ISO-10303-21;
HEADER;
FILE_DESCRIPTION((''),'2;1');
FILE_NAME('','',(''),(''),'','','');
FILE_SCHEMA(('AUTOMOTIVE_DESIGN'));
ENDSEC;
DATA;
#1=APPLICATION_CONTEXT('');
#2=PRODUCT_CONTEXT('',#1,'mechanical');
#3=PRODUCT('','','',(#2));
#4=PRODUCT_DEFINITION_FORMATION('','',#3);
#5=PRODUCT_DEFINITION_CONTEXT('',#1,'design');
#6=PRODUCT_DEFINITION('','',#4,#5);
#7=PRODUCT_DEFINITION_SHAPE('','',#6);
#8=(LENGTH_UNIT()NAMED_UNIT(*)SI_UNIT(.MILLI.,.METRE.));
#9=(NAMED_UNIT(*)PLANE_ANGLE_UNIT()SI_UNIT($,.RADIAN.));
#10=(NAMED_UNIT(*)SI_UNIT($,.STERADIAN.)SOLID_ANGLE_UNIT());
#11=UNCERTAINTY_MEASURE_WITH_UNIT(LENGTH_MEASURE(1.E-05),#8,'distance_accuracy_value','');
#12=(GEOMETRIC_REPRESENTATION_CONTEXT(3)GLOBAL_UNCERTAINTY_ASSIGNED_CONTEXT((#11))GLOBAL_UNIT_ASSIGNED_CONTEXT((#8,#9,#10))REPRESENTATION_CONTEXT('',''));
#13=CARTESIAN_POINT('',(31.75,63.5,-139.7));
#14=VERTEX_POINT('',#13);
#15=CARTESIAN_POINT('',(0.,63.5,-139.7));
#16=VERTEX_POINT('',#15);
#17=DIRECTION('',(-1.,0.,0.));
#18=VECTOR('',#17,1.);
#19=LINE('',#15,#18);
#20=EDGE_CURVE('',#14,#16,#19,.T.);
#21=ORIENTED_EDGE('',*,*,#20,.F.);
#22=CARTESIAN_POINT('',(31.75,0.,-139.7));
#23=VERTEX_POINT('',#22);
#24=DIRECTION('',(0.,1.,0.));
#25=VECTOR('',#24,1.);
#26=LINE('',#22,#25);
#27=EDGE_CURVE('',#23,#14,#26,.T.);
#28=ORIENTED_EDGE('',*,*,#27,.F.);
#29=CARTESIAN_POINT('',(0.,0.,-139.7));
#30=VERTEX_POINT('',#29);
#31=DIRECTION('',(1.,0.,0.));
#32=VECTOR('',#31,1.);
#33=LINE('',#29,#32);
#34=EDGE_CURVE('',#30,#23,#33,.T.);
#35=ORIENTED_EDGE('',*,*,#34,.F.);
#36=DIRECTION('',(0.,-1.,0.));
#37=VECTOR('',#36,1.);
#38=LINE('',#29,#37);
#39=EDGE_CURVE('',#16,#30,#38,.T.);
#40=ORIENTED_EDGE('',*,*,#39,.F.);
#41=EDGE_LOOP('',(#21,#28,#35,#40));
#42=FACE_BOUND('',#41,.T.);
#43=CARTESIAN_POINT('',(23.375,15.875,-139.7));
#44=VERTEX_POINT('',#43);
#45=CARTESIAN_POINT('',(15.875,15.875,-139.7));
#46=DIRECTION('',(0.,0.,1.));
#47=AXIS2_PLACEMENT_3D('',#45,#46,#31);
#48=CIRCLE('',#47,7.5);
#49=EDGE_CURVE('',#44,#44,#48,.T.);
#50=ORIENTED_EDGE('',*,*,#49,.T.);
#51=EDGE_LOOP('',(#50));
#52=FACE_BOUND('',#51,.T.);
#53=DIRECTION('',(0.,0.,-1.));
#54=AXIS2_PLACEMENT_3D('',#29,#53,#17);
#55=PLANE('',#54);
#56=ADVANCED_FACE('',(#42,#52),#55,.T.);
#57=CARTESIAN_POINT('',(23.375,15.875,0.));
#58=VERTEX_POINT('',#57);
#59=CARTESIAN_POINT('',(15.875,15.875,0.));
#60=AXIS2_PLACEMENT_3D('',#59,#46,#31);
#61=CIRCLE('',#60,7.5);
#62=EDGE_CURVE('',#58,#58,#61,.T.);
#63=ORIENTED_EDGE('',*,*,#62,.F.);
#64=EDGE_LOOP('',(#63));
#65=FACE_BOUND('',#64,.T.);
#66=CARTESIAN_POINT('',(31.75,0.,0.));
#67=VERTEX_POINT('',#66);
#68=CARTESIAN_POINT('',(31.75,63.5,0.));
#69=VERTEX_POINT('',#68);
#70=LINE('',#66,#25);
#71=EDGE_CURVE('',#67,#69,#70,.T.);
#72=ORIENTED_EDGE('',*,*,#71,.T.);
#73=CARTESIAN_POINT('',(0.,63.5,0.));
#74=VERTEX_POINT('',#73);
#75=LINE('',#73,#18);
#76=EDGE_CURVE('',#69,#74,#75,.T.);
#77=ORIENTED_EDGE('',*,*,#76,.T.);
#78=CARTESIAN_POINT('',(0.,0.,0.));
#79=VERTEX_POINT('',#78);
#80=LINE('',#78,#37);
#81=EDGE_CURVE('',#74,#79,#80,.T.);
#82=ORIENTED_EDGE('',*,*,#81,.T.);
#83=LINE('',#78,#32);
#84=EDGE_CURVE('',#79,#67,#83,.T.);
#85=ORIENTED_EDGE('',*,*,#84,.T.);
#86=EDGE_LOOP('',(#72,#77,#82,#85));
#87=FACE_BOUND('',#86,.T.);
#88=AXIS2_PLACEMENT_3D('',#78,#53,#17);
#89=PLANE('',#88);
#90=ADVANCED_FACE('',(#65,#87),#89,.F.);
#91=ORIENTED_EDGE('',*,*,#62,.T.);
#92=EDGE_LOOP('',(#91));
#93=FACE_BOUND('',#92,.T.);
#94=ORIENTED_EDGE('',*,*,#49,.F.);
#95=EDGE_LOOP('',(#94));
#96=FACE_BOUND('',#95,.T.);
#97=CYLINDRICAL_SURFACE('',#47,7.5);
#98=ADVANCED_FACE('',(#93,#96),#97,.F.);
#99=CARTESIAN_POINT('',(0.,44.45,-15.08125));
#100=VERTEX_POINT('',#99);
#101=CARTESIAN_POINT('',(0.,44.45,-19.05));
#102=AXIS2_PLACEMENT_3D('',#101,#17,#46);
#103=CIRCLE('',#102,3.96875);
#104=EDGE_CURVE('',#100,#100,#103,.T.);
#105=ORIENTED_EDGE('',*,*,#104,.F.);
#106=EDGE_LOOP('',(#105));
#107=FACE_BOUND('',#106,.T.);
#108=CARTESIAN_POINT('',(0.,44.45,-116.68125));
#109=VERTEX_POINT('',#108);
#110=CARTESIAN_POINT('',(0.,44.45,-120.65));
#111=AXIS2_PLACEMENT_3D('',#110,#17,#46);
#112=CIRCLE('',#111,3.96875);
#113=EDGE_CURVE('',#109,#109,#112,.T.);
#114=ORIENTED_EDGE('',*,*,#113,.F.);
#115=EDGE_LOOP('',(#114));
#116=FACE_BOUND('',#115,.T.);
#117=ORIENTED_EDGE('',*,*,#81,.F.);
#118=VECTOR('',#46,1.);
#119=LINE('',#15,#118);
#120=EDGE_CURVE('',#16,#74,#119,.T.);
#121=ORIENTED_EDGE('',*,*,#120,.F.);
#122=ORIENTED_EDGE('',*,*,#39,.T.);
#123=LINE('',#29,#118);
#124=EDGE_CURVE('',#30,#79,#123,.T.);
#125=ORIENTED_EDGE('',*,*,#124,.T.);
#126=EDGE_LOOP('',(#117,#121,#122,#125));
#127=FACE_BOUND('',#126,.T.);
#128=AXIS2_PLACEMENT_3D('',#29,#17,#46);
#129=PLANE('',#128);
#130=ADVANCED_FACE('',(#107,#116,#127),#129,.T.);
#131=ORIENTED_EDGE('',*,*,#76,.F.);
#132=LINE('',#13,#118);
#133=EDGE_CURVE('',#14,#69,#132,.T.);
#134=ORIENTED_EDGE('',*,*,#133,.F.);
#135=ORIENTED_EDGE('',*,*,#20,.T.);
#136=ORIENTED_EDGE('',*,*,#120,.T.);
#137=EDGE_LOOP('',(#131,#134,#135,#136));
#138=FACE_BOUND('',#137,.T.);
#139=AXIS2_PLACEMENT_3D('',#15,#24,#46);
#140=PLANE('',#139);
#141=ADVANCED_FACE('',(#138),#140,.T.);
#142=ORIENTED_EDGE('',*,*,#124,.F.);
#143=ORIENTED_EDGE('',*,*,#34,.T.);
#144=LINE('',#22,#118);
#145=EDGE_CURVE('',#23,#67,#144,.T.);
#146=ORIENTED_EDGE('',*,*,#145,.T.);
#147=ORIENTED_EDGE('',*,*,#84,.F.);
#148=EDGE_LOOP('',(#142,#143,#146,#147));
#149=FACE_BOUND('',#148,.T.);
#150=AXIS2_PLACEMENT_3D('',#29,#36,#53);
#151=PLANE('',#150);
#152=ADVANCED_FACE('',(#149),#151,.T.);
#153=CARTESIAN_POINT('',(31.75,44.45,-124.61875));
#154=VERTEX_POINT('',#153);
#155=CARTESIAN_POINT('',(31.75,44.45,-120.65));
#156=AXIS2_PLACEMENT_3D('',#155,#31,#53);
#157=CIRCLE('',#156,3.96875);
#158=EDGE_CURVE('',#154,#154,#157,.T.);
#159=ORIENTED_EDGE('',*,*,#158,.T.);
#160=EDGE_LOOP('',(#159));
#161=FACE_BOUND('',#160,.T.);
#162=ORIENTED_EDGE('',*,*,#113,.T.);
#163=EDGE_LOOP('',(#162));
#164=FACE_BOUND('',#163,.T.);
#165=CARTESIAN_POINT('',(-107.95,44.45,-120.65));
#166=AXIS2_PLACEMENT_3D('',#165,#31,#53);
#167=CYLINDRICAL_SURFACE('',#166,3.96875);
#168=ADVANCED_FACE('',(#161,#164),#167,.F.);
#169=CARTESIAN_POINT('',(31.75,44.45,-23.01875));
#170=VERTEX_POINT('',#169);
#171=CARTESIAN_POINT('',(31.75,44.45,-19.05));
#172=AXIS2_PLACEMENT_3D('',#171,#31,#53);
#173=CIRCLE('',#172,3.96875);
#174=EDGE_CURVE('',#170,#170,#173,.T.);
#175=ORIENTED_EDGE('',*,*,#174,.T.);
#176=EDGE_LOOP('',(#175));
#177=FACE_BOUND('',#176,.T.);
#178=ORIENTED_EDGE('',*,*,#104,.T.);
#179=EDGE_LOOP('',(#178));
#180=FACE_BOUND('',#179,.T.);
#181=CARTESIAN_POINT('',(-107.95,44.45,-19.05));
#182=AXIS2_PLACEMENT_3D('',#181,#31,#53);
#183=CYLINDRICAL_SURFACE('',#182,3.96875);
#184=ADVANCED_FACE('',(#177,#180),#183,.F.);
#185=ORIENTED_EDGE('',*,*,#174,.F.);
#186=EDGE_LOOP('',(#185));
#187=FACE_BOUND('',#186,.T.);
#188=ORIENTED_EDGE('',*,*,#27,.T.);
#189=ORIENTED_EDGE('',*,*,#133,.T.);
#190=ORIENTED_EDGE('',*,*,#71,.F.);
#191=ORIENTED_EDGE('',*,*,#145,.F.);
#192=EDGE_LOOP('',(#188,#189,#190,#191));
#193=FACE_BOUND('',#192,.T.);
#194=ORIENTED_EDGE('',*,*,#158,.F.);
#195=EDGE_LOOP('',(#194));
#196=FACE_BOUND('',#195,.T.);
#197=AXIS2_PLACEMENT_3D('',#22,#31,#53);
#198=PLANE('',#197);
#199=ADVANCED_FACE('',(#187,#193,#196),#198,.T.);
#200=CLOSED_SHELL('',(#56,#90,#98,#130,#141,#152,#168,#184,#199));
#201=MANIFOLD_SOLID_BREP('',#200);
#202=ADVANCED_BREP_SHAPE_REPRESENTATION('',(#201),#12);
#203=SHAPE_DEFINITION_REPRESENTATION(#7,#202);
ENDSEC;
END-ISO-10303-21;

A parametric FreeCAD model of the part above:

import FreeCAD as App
import Part
import Sketcher

V = App.Vector
Q = App.Units.Quantity


def add_polygon(sketch, points):
    """Adds a closed chain of lines whose ends are joined by coincident constraints."""
    first, n = sketch.GeometryCount, len(points)
    for a, b in zip(points, points[1:] + points[:1]):
        sketch.addGeometry(Part.LineSegment(App.Vector(*a, 0), App.Vector(*b, 0)), False)
    for i in range(n):
        sketch.addConstraint(Sketcher.Constraint("Coincident", first + i, 2, first + (i + 1) % n, 1))

doc = App.newDocument("Part")
body = doc.addObject("PartDesign::Body", "Body")

# Sketch on XY plane
sketch1 = doc.addObject("Sketcher::SketchObject", "Sketch")
body.addObject(sketch1)
sketch1.AttachmentSupport = (doc.XY_Plane, [""])
sketch1.MapMode = "FlatFace"
add_polygon(sketch1, [(0, 64), (0, 0), (32, 0), (32, 64)])  # lines 0-3
sketch1.addGeometry(Part.Circle(V(16, 16, 0), V(0, 0, 1), 8), False)  # 4
sketch1.addConstraint([
    Sketcher.Constraint("Vertical", 0),
    Sketcher.Constraint("Horizontal", 1),
    Sketcher.Constraint("Vertical", 2),
    Sketcher.Constraint("Horizontal", 3),
    Sketcher.Constraint("Coincident", 0, 2, -1, 1),
    Sketcher.Constraint("DistanceY", 0, 2, 0, 1, Q("2.5 in")),
    Sketcher.Constraint("DistanceX", 1, 1, 1, 2, Q("1.25 in")),
    Sketcher.Constraint("Diameter", 4, Q("15 mm")),
    Sketcher.Constraint("DistanceX", -1, 1, 4, 3, Q("0.625 in")),
    Sketcher.Constraint("DistanceY", -1, 1, 4, 3, Q("0.625 in")),
])
pad1 = doc.addObject("PartDesign::Pad", "Pad")
body.addObject(pad1)
pad1.Profile = sketch1
pad1.Length = Q("5.5 in")
pad1.Reversed = True

# Sketch on YZ plane
sketch2 = doc.addObject("Sketcher::SketchObject", "Sketch001")
body.addObject(sketch2)
sketch2.AttachmentSupport = (doc.YZ_Plane, [""])
sketch2.MapMode = "FlatFace"
sketch2.AttachmentOffset = App.Placement(V(0, 0, 1.25 * 25.4), App.Rotation())
sketch2.addGeometry([
    Part.Circle(V(44.5, -19.1, 0), V(0, 0, 1), 4),
    Part.Circle(V(44.5, -120.7, 0), V(0, 0, 1), 4),
], False)
sketch2.addConstraint([
    Sketcher.Constraint("Equal", 0, 1),
    Sketcher.Constraint("Vertical", 0, 3, 1, 3),
    Sketcher.Constraint("Diameter", 0, Q("0.3125 in")),
    Sketcher.Constraint("DistanceY", 1, 3, 0, 3, Q("4 in")),
    Sketcher.Constraint("DistanceX", -1, 1, 0, 3, Q("1.75 in")),
    Sketcher.Constraint("DistanceY", 0, 3, -1, 1, Q("0.75 in")),
])
pocket1 = doc.addObject("PartDesign::Pocket", "Pocket")
body.addObject(pocket1)
pocket1.Profile = sketch2
pocket1.Length = Q("5.5 in")

doc.recompute()
